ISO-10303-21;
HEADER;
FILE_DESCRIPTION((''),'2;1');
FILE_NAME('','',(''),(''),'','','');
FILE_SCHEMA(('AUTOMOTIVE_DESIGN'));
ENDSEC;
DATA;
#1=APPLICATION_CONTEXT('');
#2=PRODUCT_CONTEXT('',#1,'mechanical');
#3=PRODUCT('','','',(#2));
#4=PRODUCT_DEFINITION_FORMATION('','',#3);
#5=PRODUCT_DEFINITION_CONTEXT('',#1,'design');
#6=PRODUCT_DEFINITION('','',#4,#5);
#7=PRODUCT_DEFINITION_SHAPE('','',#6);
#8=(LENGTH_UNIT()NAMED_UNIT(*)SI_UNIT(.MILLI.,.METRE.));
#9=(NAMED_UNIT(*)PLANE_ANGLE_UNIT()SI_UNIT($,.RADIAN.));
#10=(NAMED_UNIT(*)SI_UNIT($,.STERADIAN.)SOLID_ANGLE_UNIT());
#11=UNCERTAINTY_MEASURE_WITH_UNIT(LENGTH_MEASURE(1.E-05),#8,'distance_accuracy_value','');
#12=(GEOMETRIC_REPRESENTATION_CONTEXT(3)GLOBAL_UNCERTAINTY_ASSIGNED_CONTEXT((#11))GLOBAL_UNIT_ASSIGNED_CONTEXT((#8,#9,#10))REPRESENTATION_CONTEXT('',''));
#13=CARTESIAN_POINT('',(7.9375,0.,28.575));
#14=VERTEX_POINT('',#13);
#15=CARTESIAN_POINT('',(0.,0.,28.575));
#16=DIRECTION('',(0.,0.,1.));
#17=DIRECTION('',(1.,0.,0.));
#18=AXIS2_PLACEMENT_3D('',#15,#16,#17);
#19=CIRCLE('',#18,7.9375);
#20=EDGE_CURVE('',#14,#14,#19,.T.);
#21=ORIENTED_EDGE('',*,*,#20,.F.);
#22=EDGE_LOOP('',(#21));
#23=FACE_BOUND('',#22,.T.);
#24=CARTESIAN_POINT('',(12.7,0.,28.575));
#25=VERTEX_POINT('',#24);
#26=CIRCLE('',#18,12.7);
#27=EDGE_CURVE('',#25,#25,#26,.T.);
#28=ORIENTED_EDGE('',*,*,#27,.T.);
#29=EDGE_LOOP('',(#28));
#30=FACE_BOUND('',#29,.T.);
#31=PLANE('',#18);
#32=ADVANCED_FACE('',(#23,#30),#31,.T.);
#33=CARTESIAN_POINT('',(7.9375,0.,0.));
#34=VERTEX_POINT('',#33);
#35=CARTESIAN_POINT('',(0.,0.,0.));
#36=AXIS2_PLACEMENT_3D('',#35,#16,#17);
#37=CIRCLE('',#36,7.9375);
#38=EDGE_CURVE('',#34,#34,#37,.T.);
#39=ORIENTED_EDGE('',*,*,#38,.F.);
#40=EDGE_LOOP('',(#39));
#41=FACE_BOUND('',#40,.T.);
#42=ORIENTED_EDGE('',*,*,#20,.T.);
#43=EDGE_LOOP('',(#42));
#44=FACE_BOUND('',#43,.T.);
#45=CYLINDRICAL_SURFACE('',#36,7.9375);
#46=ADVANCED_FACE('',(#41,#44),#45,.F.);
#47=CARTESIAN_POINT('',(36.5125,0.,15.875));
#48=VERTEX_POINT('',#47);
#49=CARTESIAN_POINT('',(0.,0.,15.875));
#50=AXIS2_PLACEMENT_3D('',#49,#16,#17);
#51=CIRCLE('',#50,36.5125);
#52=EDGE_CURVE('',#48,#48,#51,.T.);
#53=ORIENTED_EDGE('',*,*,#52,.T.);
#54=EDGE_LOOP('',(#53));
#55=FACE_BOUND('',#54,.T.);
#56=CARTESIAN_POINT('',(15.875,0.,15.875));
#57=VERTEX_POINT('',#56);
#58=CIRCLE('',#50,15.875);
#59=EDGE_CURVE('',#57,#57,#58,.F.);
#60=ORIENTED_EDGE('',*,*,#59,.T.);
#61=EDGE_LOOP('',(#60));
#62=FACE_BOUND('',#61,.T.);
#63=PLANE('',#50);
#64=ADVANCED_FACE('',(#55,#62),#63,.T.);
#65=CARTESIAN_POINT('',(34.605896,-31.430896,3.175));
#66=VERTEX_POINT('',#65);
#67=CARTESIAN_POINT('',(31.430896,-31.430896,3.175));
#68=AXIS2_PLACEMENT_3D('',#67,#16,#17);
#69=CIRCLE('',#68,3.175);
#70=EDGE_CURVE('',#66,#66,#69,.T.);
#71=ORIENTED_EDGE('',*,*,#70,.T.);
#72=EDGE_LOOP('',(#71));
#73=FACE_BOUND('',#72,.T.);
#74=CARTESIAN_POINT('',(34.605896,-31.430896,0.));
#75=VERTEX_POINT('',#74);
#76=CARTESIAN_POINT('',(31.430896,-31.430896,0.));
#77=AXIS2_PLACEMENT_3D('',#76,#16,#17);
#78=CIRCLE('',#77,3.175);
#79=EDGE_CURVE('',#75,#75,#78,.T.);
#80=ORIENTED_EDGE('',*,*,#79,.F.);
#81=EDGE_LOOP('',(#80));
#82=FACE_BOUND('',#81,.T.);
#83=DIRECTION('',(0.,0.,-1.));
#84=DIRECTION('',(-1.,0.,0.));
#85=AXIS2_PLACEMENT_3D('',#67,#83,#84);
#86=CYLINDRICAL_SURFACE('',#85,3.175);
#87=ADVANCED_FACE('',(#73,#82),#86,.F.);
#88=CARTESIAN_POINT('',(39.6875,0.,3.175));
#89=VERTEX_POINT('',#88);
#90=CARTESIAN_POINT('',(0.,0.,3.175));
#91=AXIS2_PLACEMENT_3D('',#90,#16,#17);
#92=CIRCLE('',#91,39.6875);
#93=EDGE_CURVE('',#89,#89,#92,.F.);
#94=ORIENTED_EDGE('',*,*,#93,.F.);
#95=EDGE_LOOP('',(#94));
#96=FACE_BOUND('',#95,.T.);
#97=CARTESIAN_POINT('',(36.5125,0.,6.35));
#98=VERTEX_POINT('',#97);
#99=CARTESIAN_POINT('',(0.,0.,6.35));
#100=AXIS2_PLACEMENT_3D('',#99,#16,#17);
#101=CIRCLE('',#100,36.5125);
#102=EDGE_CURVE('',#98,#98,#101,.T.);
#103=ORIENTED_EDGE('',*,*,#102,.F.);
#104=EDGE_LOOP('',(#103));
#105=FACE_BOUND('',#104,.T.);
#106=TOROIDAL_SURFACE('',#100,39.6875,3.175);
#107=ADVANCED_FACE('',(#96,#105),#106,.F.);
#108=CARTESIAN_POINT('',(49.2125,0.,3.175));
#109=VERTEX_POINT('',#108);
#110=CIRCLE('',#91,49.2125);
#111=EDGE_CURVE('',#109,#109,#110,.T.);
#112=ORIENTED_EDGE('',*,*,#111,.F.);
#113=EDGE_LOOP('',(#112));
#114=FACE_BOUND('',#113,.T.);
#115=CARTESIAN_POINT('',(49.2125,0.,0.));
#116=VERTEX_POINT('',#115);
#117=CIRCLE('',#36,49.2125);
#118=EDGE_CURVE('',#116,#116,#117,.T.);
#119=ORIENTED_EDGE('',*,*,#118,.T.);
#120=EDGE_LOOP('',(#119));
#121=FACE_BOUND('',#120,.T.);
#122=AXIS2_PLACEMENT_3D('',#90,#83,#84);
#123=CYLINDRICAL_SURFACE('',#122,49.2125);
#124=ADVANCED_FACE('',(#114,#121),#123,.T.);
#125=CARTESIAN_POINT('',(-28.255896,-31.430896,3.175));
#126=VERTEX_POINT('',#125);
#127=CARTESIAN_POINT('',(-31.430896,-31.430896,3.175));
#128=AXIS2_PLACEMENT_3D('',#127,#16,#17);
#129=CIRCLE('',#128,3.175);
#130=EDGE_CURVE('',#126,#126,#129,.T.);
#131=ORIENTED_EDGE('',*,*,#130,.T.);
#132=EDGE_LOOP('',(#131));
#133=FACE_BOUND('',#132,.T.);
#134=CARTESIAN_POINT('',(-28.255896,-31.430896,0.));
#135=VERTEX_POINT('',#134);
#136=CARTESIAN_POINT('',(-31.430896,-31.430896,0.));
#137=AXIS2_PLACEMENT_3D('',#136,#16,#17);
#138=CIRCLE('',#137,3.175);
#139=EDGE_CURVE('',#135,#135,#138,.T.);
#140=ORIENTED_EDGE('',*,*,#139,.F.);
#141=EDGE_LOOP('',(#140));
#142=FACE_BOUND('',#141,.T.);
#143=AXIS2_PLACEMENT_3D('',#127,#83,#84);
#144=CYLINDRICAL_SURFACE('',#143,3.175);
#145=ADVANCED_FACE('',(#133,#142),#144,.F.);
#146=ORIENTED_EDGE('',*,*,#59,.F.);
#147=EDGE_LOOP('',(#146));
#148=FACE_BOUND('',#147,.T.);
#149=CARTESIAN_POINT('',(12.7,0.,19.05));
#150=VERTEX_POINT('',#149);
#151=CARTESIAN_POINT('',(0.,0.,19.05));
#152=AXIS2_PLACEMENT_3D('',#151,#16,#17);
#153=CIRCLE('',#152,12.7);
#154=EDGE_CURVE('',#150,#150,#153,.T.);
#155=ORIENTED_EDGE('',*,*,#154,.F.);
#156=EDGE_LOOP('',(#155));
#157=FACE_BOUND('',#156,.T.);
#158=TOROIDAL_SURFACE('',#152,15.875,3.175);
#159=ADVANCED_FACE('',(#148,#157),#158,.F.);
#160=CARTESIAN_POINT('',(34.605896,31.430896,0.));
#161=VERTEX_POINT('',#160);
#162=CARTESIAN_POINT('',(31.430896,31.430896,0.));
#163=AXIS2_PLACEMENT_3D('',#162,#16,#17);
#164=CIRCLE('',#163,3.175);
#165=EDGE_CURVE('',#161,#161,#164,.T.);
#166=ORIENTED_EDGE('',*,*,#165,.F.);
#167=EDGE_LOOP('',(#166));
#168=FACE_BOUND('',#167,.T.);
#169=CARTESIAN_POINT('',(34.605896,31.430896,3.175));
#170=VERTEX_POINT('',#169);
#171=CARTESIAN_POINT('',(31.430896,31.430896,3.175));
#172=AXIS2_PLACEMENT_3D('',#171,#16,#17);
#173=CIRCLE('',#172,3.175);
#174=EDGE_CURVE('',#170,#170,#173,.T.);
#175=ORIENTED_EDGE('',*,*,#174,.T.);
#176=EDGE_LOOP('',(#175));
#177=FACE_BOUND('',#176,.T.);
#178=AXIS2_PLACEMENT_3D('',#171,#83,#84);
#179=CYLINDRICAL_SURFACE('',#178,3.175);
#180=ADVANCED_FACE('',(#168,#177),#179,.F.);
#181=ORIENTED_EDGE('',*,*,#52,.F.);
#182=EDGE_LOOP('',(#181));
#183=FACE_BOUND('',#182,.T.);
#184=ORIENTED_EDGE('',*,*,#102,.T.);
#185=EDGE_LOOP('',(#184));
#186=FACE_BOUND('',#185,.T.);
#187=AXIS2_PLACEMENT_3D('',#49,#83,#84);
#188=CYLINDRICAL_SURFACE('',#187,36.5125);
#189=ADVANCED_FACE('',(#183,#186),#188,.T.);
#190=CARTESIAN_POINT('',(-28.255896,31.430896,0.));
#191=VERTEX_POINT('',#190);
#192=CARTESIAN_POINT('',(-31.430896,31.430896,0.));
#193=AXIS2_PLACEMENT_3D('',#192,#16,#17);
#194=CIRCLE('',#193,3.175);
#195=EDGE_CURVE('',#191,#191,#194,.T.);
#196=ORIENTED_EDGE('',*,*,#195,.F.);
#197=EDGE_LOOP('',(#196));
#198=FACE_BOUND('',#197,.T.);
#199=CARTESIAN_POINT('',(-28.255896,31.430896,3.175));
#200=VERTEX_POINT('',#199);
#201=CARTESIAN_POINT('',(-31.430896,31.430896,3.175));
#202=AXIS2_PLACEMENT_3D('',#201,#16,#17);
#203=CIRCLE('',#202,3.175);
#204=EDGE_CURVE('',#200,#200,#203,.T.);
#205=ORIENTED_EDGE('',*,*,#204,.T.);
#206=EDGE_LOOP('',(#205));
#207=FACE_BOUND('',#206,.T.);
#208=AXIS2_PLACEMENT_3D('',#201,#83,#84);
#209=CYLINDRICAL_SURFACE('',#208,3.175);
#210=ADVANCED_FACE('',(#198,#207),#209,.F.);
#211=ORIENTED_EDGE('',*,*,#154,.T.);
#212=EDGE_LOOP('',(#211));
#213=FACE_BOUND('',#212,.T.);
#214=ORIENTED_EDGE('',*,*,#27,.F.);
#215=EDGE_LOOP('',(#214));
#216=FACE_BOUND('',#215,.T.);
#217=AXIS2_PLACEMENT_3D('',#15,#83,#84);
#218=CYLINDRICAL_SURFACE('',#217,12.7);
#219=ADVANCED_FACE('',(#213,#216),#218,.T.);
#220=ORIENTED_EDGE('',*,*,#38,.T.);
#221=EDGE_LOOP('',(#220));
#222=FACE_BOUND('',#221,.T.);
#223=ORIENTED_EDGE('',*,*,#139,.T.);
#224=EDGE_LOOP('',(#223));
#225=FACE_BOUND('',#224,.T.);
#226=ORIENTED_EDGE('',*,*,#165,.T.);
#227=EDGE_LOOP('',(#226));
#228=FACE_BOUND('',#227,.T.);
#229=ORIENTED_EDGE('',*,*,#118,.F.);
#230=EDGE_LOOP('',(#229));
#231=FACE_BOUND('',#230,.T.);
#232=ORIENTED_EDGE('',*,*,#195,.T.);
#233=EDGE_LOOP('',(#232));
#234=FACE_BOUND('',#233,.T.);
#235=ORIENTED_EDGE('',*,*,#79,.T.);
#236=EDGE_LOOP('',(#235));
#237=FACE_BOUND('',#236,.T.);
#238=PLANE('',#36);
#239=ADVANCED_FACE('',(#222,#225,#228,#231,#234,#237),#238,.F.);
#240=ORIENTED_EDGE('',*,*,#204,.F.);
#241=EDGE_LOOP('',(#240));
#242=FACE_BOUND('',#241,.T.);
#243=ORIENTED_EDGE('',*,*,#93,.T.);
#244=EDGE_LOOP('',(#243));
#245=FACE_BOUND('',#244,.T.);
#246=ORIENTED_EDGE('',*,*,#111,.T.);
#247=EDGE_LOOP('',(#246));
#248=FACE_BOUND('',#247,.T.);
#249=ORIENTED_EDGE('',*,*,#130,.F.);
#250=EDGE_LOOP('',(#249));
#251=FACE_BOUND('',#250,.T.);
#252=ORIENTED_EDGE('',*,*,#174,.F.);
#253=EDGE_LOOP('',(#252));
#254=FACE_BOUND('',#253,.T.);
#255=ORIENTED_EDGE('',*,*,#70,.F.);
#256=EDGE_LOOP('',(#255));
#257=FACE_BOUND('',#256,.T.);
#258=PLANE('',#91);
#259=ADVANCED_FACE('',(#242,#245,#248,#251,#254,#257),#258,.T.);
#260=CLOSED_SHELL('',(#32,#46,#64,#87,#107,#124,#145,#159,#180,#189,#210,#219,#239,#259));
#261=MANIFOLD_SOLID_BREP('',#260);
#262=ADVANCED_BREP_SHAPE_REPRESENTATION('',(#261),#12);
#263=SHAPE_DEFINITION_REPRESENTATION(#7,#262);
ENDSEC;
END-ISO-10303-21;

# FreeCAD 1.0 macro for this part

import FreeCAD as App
import Part
import Sketcher
Q = App.Units.Quantity


def edges_at(feature, points):
    """Names of the edges that pass closest to the given points."""
    edges = feature.Shape.Edges
    near = lambda p: min(range(len(edges)), key=lambda i: edges[i].distToShape(Part.Vertex(*p))[0])
    return sorted({f"Edge{near(p) + 1}" for p in points})

doc = App.newDocument("Part")
body = doc.addObject("PartDesign::Body", "Body")

sketch1 = body.newObject("Sketcher::SketchObject", "Sketch")
sketch1.AttachmentSupport = (doc.getObject("XY_Plane"), [""])
sketch1.MapMode = "FlatFace"
sketch1.addGeometry([
    Part.Circle(App.Vector(0, 0, 0), App.Vector(0, 0, 1), 49.2125),
    Part.Circle(App.Vector(-31.430896, -31.430896, 0), App.Vector(0, 0, 1), 3.175),
    Part.Circle(App.Vector(31.430896, -31.430896, 0), App.Vector(0, 0, 1), 3.175),
    Part.Circle(App.Vector(-31.430896, 31.430896, 0), App.Vector(0, 0, 1), 3.175),
    Part.Circle(App.Vector(31.430896, 31.430896, 0), App.Vector(0, 0, 1), 3.175),
], False)
sketch1.addConstraint([
    Sketcher.Constraint("Coincident", 0, 3, -1, 1),
    Sketcher.Constraint("Equal", 1, 2),
    Sketcher.Constraint("Equal", 2, 3),
    Sketcher.Constraint("Equal", 3, 4),
    Sketcher.Constraint("Symmetric", 2, 3, 3, 3, -1, 1),
    Sketcher.Constraint("Symmetric", 1, 3, 4, 3, -1, 1),
    Sketcher.Constraint("Symmetric", 1, 3, 2, 3, -2),
    Sketcher.Constraint("Diameter", 1, Q("0.25 in")),
    Sketcher.Constraint("Diameter", 0, Q("3.875 in")),
    Sketcher.Constraint("DistanceX", 1, 3, -1, 1, Q("31.430896 mm")),
    Sketcher.Constraint("DistanceY", 1, 3, -1, 1, Q("31.430896 mm")),
])
pad1 = body.newObject("PartDesign::Pad", "Pad")
pad1.Profile = sketch1
pad1.Length = Q("0.125 in")

sketch2 = body.newObject("Sketcher::SketchObject", "Sketch001")
sketch2.AttachmentSupport = (doc.getObject("XY_Plane"), [""])
sketch2.MapMode = "FlatFace"
sketch2.AttachmentOffset = App.Placement(App.Vector(0, 0, 0.125 * 25.4), App.Rotation())
sketch2.addGeometry(Part.Circle(App.Vector(0, 0, 0), App.Vector(0, 0, 1), 36.5125), False)
sketch2.addConstraint([
    Sketcher.Constraint("Coincident", 0, 3, -1, 1),
    Sketcher.Constraint("Diameter", 0, Q("2.875 in")),
])
pad2 = body.newObject("PartDesign::Pad", "Pad001")
pad2.Profile = sketch2
pad2.Length = Q("0.5 in")

sketch3 = body.newObject("Sketcher::SketchObject", "Sketch002")
sketch3.AttachmentSupport = (doc.getObject("XY_Plane"), [""])
sketch3.MapMode = "FlatFace"
sketch3.AttachmentOffset = App.Placement(App.Vector(0, 0, 0.625 * 25.4), App.Rotation())
sketch3.addGeometry(Part.Circle(App.Vector(0, 0, 0), App.Vector(0, 0, 1), 12.7), False)
sketch3.addConstraint([
    Sketcher.Constraint("Coincident", 0, 3, -1, 1),
    Sketcher.Constraint("Diameter", 0, Q("1 in")),
])
pad3 = body.newObject("PartDesign::Pad", "Pad002")
pad3.Profile = sketch3
pad3.Length = Q("0.5 in")
doc.recompute()

fillet = body.newObject("PartDesign::Fillet", "Fillet")
fillet.Base = (pad3, edges_at(pad3, [(-36.513, 0, 3.175), (-12.7, 0, 15.875)]))
fillet.Radius = Q("0.125 in")

sketch4 = body.newObject("Sketcher::SketchObject", "Sketch003")
sketch4.AttachmentSupport = (doc.getObject("XY_Plane"), [""])
sketch4.MapMode = "FlatFace"
sketch4.AttachmentOffset = App.Placement(App.Vector(0, 0, 1.125 * 25.4), App.Rotation())
sketch4.addGeometry(Part.Circle(App.Vector(0, 0, 0), App.Vector(0, 0, 1), 7.9375), False)
sketch4.addConstraint([
    Sketcher.Constraint("Coincident", 0, 3, -1, 1),
    Sketcher.Constraint("Diameter", 0, Q("0.625 in")),
])
pocket1 = body.newObject("PartDesign::Pocket", "Pocket")
pocket1.Profile = sketch4
pocket1.Type = "ThroughAll"

doc.recompute()
